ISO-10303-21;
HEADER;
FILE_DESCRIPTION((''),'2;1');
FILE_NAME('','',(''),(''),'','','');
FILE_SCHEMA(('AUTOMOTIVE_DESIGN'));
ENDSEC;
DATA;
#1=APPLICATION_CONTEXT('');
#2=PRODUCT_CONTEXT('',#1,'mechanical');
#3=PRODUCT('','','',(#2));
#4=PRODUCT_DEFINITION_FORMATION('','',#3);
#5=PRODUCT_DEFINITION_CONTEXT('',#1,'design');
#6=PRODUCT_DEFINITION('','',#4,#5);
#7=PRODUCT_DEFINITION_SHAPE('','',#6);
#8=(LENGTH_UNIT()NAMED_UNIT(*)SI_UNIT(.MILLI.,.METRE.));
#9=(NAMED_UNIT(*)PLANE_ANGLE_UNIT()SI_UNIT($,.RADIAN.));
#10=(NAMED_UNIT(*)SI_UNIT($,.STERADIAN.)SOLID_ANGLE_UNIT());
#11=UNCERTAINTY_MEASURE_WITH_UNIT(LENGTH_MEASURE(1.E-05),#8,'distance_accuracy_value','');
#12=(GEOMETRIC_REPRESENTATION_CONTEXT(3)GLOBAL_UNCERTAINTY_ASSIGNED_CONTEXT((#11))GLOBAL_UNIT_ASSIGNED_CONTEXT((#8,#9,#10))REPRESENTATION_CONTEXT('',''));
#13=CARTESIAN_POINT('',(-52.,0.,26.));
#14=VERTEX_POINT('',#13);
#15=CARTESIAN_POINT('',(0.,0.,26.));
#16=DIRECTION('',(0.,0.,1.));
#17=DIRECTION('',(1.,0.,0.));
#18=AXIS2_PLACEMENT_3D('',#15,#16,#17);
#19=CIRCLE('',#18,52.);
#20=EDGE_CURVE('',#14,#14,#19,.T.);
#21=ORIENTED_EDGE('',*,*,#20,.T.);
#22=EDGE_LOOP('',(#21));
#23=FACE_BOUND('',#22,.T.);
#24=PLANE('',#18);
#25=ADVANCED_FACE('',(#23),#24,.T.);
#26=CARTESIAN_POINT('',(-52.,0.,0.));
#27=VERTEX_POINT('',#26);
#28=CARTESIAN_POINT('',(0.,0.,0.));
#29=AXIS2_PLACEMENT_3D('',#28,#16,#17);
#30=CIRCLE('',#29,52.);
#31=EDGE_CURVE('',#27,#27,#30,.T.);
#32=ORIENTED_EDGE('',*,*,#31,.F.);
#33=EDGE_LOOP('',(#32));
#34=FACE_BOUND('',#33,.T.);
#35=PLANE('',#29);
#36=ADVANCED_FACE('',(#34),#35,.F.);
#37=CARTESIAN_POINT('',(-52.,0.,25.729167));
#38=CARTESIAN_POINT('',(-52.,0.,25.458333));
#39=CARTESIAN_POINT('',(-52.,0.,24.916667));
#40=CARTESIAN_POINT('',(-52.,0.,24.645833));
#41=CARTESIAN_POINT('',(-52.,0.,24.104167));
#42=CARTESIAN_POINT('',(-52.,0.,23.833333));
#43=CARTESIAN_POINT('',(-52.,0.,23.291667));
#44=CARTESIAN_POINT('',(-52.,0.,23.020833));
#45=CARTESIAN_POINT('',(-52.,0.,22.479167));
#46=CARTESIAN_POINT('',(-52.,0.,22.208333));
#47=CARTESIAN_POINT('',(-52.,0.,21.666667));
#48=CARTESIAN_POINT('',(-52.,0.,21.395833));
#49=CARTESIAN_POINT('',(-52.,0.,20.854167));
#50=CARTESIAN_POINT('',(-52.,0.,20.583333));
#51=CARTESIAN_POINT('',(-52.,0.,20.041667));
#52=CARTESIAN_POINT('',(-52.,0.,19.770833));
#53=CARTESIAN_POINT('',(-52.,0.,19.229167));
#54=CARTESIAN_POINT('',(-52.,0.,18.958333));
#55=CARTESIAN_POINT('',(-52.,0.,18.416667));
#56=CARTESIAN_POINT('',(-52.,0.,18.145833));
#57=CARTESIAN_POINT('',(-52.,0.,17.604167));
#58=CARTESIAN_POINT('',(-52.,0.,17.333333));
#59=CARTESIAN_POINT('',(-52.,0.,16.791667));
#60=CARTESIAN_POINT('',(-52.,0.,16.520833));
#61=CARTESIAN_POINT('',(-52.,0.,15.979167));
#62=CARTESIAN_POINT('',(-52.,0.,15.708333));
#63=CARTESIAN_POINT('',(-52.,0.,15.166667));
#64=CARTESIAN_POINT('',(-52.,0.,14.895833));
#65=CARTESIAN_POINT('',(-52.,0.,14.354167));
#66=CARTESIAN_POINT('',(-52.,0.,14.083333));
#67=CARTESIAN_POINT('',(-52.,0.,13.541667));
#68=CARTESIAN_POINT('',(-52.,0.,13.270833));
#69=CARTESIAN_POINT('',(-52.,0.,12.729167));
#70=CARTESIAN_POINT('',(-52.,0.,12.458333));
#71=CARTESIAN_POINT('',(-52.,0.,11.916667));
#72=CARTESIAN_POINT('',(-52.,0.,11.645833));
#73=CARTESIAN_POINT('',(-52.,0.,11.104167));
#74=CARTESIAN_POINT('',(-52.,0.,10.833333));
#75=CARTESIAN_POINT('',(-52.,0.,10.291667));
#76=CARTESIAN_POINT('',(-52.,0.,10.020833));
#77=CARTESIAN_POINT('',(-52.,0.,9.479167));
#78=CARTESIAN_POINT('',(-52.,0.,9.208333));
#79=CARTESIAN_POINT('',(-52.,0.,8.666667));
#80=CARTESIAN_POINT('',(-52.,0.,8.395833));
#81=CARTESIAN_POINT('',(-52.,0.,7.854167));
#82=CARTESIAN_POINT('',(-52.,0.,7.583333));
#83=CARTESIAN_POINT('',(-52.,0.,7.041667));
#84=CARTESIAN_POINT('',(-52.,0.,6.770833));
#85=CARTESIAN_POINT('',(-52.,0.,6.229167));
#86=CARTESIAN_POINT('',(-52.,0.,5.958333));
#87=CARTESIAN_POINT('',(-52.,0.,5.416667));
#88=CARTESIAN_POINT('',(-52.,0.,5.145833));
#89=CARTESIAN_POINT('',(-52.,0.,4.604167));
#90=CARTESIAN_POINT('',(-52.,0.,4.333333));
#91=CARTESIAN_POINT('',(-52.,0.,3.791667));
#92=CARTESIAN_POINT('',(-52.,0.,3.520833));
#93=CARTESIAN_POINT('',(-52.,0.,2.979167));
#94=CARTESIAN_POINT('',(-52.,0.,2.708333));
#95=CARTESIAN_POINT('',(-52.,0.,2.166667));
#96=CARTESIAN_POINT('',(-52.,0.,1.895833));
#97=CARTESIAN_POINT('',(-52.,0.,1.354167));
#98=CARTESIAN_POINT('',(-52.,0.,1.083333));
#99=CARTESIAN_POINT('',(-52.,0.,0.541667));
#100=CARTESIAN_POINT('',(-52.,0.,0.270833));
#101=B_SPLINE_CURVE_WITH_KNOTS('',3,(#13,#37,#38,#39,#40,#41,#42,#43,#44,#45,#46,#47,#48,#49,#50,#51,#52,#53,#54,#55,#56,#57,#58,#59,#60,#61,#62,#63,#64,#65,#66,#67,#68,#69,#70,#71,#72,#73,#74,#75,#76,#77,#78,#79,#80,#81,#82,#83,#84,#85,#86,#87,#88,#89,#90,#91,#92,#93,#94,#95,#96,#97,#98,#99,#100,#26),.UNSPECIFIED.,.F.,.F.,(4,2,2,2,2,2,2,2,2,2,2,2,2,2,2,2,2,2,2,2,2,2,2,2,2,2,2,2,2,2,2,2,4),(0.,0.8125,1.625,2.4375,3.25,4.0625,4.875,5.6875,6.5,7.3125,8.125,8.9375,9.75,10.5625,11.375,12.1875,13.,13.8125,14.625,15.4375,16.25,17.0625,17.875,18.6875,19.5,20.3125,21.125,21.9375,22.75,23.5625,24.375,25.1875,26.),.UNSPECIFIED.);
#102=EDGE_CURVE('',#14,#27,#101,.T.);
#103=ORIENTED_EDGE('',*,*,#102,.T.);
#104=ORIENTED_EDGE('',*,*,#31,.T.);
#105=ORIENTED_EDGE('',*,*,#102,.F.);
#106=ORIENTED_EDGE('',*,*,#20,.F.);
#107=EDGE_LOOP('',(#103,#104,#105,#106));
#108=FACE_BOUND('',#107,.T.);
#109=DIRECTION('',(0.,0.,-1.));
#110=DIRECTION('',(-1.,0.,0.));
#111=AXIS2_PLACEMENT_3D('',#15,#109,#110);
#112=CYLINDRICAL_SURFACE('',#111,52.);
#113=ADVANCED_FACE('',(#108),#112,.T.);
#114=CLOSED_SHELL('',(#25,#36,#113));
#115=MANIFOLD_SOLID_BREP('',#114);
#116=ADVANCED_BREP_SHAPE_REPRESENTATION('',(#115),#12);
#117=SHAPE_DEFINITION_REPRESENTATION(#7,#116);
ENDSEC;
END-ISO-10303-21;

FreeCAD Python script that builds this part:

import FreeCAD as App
import Part
import Sketcher

doc = App.newDocument("Part")
body = doc.addObject("PartDesign::Body", "Body")

sketch1 = body.newObject("Sketcher::SketchObject", "Sketch")
sketch1.AttachmentSupport = (doc.getObject("XY_Plane"), [""])
sketch1.MapMode = "FlatFace"
sketch1.addGeometry(Part.Circle(App.Vector(0, 0, 0), App.Vector(0, 0, 1), 52), False)
sketch1.addConstraint([
    Sketcher.Constraint("Coincident", 0, 3, -1, 1),
    Sketcher.Constraint("Diameter", 0, 104.0),
])
pad1 = body.newObject("PartDesign::Pad", "Pad")
pad1.Profile = sketch1
pad1.Length = 26

doc.recompute()
